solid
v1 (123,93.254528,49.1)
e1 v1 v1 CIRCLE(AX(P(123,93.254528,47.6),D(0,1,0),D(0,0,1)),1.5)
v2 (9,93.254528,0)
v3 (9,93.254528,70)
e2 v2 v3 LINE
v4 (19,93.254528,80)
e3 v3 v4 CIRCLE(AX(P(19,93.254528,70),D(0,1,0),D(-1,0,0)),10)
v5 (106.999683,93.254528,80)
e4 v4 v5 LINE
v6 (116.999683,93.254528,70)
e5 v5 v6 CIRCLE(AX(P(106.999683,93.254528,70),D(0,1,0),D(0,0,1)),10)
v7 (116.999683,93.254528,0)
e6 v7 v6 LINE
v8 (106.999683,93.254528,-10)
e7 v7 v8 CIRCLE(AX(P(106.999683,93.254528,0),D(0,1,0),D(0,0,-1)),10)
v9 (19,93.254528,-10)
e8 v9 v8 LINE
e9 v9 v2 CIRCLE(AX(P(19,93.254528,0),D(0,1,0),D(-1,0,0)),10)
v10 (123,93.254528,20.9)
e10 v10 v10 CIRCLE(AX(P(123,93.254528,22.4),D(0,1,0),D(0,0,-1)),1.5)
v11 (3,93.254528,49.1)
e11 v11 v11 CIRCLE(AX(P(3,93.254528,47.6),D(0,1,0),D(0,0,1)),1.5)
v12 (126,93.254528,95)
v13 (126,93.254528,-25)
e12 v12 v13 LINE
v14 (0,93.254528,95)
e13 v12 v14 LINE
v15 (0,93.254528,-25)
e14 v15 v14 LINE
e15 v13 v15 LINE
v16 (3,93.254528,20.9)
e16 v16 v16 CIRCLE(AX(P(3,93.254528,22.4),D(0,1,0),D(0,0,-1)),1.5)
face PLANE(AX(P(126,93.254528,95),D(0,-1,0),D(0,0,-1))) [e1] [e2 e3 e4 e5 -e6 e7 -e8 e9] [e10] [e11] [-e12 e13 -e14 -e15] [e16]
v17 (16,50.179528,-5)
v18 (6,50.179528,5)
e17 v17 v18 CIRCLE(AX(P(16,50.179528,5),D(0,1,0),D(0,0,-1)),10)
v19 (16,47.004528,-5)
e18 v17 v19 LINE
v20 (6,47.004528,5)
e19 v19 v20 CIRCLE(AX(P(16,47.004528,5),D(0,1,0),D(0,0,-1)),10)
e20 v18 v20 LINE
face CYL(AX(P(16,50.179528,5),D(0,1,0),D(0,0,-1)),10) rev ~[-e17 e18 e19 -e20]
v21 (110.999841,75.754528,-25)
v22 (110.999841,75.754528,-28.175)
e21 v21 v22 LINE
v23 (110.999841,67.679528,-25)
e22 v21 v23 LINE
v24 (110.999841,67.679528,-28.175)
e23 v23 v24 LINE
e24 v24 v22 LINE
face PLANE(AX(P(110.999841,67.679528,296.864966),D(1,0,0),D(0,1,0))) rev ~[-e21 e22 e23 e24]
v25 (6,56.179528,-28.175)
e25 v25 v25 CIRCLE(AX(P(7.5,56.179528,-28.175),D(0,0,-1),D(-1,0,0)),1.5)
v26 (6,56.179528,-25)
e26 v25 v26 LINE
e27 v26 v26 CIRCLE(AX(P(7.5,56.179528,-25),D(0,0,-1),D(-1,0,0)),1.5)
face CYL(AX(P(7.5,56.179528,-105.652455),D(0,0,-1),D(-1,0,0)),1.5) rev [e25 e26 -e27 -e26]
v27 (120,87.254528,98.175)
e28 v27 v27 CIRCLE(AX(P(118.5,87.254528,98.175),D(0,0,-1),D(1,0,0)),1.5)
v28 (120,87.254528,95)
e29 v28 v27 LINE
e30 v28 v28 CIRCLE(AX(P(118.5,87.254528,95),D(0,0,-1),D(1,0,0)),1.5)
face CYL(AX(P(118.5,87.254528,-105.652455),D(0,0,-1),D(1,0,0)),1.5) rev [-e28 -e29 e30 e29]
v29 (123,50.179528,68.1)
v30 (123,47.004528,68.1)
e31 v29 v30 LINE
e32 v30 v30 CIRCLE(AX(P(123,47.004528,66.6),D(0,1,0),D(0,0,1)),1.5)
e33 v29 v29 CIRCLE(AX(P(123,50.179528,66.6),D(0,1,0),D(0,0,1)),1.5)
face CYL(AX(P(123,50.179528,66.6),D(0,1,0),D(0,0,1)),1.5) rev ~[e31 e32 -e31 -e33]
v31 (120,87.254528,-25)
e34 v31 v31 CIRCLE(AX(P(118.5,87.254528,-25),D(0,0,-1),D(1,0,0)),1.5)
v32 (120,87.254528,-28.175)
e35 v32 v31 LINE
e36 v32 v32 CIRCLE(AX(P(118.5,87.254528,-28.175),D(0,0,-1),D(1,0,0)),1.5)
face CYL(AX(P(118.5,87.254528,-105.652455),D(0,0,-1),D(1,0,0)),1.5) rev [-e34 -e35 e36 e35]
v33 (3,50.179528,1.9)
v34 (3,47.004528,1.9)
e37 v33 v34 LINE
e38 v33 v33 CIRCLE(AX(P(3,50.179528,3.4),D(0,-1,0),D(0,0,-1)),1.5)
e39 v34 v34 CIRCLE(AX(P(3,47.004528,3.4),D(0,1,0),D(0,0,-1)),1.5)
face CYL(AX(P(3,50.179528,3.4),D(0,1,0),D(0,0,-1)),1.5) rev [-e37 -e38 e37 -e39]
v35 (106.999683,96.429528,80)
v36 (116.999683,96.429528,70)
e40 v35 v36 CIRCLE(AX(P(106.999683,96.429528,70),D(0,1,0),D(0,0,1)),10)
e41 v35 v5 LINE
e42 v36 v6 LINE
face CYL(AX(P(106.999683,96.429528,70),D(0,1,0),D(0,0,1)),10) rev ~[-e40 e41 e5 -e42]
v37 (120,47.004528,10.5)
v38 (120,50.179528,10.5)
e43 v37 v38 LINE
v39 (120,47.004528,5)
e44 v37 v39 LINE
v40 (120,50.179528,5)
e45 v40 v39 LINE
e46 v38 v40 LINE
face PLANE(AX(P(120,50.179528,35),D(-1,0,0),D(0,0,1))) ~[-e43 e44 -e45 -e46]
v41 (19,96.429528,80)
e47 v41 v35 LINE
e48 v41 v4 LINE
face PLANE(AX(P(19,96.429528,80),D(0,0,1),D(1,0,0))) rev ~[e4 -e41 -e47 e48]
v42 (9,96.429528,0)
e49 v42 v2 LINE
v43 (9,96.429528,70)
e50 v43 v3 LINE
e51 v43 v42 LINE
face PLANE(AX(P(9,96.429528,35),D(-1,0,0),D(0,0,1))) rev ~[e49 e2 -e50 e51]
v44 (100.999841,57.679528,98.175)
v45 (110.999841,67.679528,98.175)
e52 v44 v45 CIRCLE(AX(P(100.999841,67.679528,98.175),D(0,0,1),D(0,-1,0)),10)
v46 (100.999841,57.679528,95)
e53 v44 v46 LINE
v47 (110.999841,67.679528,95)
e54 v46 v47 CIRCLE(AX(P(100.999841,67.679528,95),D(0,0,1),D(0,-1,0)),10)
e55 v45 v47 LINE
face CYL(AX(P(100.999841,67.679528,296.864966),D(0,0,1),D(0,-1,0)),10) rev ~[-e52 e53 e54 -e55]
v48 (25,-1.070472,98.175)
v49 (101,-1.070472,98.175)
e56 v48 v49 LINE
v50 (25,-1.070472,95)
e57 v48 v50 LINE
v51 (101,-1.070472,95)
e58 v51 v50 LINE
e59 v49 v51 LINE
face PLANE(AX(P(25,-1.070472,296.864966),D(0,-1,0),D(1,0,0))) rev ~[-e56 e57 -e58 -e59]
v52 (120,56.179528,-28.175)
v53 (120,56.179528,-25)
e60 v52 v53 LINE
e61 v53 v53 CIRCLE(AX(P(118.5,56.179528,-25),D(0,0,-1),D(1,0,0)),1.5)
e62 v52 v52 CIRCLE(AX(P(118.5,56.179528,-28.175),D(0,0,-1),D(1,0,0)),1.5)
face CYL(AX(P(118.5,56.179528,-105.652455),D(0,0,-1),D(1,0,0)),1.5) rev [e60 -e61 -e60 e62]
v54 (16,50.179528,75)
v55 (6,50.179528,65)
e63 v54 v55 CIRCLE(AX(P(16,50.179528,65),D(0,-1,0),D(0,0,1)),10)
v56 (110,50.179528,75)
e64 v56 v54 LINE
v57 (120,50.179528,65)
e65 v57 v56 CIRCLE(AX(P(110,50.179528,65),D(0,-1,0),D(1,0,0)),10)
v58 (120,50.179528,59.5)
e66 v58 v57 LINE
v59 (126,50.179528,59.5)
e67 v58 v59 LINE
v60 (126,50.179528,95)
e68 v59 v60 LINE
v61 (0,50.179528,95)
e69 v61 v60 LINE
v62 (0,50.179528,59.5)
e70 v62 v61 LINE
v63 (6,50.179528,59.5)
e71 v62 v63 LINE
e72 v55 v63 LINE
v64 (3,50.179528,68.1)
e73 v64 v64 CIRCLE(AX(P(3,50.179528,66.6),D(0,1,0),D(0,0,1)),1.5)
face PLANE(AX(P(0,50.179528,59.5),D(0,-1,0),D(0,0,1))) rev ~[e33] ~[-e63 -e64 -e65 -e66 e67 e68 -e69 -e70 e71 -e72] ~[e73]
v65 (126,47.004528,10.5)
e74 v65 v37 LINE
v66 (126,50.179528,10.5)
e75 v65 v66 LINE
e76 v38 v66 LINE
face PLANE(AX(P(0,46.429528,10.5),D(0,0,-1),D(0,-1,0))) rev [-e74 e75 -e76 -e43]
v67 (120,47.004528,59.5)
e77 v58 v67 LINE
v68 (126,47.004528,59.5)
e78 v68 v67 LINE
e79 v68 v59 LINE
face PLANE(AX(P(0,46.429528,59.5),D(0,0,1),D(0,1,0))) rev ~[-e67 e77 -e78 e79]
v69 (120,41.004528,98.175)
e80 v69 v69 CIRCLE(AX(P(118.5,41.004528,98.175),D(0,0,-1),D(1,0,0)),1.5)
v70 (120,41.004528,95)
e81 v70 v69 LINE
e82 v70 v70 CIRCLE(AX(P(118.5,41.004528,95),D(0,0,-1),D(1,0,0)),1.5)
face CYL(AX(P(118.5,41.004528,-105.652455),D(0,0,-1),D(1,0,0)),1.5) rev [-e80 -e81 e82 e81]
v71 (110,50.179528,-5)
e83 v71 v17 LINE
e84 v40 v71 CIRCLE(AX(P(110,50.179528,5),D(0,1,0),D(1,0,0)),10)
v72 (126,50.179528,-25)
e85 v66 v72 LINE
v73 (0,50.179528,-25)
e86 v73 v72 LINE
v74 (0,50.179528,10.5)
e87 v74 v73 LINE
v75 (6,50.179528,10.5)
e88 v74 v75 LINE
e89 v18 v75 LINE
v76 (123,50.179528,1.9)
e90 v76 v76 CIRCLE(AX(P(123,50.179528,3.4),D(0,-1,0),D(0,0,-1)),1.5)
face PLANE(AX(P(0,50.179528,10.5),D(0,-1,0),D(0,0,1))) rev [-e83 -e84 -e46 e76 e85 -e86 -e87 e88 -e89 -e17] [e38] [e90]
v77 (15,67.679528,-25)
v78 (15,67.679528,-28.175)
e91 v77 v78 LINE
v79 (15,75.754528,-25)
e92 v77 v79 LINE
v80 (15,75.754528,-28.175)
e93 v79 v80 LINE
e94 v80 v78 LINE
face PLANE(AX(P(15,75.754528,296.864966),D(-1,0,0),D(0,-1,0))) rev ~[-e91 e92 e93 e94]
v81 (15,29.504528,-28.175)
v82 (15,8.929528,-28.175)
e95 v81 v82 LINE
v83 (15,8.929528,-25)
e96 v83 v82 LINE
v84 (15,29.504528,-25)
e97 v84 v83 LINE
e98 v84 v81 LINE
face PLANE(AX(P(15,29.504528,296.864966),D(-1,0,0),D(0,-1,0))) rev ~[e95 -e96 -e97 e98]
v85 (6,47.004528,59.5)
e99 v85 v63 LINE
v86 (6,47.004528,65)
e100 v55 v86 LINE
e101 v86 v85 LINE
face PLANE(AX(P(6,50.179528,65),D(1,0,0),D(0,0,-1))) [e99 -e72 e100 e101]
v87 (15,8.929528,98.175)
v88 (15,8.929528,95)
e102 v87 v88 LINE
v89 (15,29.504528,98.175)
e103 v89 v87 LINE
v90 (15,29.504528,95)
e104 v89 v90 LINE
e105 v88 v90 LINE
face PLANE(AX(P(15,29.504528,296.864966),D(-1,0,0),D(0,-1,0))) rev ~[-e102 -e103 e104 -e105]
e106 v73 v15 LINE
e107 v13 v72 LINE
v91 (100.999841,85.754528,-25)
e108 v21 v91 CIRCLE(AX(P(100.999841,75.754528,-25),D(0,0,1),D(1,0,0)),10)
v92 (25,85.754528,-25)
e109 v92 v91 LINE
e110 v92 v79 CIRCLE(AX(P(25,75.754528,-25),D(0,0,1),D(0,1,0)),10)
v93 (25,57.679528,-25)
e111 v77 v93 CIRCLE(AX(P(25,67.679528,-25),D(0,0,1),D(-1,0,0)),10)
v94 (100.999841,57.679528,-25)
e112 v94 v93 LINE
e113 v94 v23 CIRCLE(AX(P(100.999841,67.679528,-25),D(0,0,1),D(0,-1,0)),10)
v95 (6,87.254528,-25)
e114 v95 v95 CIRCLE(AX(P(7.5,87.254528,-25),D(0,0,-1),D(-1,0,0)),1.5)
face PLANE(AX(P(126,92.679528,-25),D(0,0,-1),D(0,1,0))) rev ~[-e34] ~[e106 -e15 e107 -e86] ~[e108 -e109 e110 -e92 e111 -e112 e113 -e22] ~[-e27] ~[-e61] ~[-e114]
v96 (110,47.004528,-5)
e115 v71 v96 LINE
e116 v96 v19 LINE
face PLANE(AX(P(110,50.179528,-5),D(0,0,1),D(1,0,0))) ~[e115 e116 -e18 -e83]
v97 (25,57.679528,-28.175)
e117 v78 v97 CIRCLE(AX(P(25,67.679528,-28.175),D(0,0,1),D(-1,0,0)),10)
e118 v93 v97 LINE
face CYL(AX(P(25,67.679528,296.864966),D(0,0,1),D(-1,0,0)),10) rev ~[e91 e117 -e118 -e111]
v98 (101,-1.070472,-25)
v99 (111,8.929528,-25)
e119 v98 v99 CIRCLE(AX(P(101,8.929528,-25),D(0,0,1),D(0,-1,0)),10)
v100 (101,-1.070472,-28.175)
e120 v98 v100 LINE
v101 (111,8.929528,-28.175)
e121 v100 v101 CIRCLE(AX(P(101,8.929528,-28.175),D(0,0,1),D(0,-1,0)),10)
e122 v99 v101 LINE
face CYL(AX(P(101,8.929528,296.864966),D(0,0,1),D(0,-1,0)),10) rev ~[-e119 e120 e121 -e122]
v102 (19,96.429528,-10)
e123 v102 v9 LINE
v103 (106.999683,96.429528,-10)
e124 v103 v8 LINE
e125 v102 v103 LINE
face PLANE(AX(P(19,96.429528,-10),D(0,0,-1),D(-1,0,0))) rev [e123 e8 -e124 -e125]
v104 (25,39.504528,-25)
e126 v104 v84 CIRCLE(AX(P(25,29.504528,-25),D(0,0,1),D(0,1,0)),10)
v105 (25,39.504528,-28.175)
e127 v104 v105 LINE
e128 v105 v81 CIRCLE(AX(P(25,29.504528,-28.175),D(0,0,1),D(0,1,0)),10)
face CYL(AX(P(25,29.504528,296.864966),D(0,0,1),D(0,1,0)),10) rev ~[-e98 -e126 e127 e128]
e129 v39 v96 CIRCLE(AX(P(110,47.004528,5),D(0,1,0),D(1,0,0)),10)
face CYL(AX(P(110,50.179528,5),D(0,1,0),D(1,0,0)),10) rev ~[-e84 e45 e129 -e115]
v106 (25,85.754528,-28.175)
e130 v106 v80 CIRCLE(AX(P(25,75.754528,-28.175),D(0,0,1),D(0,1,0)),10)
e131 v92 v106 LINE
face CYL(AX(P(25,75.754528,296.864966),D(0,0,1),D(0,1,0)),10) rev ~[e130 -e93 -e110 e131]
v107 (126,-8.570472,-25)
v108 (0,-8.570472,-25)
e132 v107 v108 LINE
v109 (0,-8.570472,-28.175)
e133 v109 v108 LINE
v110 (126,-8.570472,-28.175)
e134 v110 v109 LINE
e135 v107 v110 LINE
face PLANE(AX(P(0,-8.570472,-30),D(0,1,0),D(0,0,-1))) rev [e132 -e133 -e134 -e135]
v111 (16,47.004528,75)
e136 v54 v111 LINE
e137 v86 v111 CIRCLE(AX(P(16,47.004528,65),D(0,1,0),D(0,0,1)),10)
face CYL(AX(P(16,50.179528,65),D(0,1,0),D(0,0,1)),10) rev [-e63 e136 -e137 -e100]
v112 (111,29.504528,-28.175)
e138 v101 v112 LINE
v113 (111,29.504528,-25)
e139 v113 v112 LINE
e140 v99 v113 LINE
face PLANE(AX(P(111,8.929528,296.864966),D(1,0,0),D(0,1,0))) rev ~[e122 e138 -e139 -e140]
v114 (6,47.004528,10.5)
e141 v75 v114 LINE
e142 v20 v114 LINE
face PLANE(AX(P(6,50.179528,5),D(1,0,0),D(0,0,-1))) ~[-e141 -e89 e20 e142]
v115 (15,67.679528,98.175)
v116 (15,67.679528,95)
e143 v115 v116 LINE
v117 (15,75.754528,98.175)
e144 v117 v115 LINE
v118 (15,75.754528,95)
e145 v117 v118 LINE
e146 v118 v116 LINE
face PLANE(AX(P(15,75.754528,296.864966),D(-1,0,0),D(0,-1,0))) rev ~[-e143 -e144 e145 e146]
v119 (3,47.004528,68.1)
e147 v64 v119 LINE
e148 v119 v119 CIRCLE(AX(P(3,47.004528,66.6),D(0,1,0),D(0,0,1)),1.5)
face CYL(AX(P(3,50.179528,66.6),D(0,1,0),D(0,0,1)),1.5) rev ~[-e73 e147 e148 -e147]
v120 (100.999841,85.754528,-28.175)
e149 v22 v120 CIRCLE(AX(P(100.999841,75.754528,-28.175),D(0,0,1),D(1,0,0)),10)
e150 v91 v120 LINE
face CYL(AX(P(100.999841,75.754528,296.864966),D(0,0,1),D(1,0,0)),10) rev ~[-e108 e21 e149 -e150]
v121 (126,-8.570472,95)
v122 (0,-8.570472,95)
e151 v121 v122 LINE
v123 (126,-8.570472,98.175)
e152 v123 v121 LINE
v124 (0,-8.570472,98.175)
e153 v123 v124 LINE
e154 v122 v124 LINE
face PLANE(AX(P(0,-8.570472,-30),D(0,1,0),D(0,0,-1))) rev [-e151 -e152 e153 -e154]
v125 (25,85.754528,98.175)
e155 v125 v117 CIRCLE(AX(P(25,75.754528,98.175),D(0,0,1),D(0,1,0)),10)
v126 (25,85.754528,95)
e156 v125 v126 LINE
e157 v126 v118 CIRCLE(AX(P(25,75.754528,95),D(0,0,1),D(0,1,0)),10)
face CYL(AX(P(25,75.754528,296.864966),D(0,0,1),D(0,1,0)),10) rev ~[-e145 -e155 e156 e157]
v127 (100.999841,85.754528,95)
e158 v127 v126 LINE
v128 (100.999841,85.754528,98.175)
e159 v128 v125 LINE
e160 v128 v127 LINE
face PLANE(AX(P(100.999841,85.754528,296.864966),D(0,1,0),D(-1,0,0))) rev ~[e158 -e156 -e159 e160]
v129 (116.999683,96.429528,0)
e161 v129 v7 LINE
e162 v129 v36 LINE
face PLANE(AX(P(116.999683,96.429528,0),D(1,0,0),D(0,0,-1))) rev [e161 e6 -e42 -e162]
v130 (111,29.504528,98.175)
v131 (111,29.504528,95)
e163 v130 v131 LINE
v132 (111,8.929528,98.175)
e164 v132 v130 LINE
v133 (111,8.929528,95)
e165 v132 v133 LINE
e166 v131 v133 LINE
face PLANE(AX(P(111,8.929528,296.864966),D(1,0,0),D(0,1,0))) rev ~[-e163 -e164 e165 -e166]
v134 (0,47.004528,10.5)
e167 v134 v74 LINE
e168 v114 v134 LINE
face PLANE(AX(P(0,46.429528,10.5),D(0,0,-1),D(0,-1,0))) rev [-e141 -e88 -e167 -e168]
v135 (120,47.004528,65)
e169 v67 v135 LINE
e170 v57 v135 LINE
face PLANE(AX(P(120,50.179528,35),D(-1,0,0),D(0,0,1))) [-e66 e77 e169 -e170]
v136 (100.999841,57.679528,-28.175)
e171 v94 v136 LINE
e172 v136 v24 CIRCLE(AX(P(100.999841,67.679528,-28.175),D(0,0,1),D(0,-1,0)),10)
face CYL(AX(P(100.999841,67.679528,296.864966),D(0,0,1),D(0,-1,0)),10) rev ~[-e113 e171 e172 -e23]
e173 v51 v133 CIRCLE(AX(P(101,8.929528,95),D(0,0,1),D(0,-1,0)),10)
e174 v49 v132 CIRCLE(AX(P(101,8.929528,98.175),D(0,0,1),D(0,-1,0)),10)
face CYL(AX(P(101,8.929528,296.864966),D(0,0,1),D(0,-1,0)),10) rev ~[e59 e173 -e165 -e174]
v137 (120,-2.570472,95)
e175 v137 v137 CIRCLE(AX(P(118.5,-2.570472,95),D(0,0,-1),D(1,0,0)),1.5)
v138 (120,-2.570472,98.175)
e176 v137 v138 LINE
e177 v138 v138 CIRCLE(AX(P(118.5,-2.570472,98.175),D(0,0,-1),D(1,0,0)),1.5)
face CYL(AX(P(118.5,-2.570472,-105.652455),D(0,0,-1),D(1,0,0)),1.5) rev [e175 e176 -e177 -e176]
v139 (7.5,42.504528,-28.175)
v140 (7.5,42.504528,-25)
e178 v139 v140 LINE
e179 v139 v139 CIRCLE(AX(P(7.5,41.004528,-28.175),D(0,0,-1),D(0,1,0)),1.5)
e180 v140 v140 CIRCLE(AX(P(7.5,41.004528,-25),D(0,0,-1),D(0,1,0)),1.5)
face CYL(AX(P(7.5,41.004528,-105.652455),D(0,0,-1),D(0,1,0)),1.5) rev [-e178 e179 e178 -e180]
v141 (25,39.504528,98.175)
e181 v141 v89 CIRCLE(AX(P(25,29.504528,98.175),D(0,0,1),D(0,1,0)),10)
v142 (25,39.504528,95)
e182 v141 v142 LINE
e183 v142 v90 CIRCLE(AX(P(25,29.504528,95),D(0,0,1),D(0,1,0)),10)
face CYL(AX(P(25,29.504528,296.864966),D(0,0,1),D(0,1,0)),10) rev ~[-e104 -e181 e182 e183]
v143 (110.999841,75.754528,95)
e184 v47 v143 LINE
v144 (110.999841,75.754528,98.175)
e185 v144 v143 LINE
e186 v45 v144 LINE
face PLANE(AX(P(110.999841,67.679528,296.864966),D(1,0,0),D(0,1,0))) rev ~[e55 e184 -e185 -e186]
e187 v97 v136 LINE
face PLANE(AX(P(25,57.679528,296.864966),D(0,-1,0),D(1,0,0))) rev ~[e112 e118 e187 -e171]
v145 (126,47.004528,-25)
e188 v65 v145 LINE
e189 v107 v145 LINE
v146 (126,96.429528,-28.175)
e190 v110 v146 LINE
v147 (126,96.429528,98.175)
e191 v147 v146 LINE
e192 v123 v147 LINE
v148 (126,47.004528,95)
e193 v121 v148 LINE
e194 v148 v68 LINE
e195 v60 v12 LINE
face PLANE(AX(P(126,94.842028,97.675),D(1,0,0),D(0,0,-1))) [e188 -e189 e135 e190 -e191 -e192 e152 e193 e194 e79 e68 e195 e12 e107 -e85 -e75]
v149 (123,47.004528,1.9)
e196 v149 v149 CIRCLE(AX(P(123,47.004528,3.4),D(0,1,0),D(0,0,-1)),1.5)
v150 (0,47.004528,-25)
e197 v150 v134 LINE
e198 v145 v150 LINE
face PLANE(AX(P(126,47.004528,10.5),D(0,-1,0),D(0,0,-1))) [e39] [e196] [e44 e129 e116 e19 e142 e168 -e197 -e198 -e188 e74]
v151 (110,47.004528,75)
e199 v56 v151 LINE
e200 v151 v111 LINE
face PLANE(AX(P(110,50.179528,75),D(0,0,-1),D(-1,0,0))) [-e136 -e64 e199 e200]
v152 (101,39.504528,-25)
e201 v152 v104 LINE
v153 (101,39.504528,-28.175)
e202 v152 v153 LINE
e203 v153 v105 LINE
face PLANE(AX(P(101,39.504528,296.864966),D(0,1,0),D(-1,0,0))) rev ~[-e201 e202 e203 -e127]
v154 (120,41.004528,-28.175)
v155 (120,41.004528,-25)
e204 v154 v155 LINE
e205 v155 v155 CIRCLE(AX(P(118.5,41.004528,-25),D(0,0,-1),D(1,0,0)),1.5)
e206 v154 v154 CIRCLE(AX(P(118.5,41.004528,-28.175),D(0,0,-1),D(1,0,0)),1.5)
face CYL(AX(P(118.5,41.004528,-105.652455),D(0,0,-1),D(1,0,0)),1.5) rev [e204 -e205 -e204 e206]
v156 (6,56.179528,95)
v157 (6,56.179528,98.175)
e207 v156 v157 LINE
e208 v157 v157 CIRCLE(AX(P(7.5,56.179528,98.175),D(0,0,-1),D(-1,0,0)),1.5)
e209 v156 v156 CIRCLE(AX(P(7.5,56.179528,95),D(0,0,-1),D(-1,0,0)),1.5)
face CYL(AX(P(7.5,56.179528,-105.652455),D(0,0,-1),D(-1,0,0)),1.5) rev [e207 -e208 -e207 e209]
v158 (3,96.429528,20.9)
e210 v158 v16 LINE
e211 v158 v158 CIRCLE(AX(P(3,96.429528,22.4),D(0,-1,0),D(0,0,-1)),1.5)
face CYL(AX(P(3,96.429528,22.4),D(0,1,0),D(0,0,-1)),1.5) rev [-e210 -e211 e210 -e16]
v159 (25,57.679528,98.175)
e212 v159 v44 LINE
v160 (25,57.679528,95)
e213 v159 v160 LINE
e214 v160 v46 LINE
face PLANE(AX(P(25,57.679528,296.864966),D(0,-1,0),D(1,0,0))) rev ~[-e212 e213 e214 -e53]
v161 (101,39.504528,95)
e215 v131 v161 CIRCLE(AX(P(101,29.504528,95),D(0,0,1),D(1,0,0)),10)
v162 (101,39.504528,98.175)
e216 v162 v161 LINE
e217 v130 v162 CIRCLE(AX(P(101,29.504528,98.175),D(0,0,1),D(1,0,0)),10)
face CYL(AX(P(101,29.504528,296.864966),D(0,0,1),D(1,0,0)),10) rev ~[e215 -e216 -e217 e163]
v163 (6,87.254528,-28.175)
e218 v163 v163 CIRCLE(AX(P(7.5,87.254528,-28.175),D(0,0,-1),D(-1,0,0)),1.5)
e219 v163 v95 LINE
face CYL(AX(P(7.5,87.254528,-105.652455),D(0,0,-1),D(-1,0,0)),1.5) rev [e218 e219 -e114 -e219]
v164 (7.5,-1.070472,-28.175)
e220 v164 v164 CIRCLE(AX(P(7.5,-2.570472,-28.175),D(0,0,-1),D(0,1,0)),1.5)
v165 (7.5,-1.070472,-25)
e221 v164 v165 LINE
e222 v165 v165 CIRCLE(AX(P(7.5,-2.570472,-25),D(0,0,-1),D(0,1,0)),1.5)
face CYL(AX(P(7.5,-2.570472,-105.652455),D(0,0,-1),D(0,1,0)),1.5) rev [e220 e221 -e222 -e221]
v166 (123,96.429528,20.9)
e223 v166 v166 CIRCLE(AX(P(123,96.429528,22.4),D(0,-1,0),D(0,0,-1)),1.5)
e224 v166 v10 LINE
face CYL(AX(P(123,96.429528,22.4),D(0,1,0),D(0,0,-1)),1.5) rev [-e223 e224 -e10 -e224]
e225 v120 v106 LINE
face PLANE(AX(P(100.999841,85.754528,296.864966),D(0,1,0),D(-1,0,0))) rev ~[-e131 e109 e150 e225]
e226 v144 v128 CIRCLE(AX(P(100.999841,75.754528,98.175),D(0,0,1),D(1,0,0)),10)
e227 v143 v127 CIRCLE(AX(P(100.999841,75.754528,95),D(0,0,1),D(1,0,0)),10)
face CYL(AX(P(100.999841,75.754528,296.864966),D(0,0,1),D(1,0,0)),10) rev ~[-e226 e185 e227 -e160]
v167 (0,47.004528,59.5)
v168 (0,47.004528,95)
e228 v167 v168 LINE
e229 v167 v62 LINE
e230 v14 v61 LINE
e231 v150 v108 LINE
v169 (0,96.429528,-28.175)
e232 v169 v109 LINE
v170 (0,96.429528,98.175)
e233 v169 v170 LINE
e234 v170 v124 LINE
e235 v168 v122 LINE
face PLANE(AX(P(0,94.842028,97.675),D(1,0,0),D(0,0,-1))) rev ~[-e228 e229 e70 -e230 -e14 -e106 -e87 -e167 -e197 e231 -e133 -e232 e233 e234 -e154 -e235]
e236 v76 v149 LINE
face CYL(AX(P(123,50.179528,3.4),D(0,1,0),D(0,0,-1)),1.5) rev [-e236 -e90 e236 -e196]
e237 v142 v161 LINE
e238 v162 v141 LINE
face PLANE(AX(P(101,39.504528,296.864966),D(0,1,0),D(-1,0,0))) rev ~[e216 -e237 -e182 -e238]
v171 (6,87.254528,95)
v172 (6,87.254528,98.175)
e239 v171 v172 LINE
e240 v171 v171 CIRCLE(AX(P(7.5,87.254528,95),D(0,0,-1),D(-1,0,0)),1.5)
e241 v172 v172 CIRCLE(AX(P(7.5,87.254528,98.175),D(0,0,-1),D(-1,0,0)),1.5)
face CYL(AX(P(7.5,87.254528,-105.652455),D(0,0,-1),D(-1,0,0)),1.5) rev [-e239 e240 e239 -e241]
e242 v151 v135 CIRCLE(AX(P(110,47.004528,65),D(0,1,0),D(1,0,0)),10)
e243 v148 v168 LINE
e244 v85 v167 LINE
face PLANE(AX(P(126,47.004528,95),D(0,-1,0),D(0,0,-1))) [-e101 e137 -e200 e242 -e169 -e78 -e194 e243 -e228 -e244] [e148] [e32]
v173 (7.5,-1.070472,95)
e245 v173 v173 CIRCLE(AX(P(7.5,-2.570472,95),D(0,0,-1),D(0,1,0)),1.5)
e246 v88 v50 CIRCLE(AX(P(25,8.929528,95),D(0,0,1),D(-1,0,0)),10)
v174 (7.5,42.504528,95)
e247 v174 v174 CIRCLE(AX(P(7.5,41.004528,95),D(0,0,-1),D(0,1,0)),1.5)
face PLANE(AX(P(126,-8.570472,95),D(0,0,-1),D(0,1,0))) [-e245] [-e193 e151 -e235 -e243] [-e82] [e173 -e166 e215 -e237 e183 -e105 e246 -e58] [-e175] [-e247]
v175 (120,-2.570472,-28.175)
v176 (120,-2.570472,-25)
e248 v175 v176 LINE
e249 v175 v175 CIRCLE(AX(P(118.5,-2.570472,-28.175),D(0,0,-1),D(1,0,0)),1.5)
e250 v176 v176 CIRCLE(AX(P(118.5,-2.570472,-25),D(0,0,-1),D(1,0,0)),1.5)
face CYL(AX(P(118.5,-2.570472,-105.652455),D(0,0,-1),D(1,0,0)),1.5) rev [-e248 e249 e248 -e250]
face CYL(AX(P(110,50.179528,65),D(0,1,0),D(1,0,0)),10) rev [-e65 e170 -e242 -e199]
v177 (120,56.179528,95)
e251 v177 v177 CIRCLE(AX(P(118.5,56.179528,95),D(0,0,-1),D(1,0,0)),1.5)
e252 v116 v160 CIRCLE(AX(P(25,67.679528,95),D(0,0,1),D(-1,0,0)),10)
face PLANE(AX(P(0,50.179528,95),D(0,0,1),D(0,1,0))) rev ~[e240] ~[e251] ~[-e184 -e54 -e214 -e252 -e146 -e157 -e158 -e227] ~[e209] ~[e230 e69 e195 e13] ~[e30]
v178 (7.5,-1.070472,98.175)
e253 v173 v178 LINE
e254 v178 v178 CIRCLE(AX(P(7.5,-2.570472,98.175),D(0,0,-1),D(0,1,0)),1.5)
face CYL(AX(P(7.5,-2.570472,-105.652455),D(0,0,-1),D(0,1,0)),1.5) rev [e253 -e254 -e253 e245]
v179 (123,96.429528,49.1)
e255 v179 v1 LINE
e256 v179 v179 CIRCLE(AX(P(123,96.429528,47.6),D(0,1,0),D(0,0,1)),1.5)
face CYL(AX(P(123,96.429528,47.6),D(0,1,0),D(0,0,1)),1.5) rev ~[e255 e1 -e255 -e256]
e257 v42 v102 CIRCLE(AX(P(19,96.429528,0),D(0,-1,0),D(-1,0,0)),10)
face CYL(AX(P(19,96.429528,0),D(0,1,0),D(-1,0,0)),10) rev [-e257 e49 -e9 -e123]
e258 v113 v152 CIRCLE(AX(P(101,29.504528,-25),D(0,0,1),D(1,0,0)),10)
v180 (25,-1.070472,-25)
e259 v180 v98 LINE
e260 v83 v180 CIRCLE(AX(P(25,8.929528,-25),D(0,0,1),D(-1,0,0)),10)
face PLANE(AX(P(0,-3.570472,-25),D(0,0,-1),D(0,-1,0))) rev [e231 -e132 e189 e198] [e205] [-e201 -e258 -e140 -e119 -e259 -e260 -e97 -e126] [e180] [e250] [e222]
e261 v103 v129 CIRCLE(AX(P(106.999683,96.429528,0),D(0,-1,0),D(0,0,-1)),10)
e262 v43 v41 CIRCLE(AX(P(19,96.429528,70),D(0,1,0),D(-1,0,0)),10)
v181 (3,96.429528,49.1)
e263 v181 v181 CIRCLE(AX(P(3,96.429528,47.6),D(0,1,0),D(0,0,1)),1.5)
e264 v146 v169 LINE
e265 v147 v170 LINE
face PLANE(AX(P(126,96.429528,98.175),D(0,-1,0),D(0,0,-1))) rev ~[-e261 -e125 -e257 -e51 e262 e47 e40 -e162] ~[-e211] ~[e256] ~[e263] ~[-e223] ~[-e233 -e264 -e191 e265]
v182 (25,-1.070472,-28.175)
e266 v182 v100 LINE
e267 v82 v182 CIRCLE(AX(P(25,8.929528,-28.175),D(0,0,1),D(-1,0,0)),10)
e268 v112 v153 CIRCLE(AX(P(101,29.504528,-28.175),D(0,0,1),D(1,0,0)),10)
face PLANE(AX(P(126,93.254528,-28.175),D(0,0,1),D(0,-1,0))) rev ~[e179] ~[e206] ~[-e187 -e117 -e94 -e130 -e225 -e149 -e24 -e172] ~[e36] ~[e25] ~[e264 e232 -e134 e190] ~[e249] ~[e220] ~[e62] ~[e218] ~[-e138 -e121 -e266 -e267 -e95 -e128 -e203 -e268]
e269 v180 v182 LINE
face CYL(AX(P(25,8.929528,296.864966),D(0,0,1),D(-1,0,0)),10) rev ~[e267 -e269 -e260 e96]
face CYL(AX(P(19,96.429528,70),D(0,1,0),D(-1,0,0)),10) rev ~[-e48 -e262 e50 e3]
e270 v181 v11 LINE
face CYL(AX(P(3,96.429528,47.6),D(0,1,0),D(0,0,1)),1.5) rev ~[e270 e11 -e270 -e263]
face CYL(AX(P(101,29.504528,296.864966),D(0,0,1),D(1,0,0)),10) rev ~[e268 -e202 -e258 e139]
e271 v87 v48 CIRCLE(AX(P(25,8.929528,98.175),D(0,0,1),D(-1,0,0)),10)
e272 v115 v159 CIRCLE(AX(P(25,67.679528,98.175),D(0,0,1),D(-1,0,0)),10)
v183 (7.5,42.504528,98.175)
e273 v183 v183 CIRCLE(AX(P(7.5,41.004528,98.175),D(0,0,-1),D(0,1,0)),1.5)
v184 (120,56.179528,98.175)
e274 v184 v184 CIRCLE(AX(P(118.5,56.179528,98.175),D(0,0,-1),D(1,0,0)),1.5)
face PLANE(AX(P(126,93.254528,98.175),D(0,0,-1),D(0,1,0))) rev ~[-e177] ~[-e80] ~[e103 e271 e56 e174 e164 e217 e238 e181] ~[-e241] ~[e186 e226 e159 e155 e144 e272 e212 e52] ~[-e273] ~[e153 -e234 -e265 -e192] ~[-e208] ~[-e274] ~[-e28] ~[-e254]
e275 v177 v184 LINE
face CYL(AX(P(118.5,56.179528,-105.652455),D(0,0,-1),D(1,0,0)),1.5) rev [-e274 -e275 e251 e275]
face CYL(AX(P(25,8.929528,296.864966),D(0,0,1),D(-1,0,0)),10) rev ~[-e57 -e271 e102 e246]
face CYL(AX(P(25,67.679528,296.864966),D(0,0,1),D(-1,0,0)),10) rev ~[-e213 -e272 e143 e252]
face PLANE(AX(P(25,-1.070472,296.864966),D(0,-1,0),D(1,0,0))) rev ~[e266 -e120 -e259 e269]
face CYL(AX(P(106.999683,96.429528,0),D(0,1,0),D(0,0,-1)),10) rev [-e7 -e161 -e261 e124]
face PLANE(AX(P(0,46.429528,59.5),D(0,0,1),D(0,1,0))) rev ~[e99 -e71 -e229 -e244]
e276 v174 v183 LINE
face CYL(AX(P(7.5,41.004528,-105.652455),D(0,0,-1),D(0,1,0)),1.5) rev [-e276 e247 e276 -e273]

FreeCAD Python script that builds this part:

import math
import FreeCAD as App
import Part
import Sketcher

V = App.Vector

doc = App.newDocument("Part")
body = doc.addObject("PartDesign::Body", "Body")

# Sketch on YZ plane
sketch1 = body.newObject("Sketcher::SketchObject", "Sketch")
sketch1.AttachmentSupport = (doc.getObject("YZ_Plane"), [""])
sketch1.MapMode = "FlatFace"
sketch1.addGeometry([
    Part.LineSegment(V(-3.6, 95, 0), V(46.4, 95, 0)),  # 0
    Part.LineSegment(V(46.4, 95, 0), V(46.4, 59.5, 0)),  # 1
    Part.LineSegment(V(46.4, 59.5, 0), V(50.2, 59.5, 0)),  # 2
    Part.LineSegment(V(50.2, 59.5, 0), V(50.2, 95, 0)),  # 3
    Part.LineSegment(V(50.2, 95, 0), V(92.7, 95, 0)),  # 4
    Part.LineSegment(V(92.7, 95, 0), V(92.7, 35, 0)),  # 5
    Part.LineSegment(V(92.7, 35, 0), V(96.4, 35, 0)),  # 6
    Part.LineSegment(V(96.4, 35, 0), V(96.4, 100, 0)),  # 7
    Part.LineSegment(V(96.4, 100, 0), V(-8.6, 100, 0)),  # 8
    Part.LineSegment(V(-8.6, 100, 0), V(-8.6, 35, 0)),  # 9
    Part.LineSegment(V(-8.6, 35, 0), V(-3.6, 35, 0)),  # 10
    Part.LineSegment(V(-3.6, 35, 0), V(-3.6, 95, 0)),  # 11
], False)
sketch1.addConstraint([
    Sketcher.Constraint("Coincident", 0, 2, 1, 1),
    Sketcher.Constraint("Coincident", 1, 2, 2, 1),
    Sketcher.Constraint("Coincident", 2, 2, 3, 1),
    Sketcher.Constraint("Coincident", 3, 2, 4, 1),
    Sketcher.Constraint("Coincident", 4, 2, 5, 1),
    Sketcher.Constraint("Coincident", 5, 2, 6, 1),
    Sketcher.Constraint("Coincident", 6, 2, 7, 1),
    Sketcher.Constraint("Coincident", 7, 2, 8, 1),
    Sketcher.Constraint("Coincident", 8, 2, 9, 1),
    Sketcher.Constraint("Coincident", 9, 2, 10, 1),
    Sketcher.Constraint("Coincident", 10, 2, 11, 1),
    Sketcher.Constraint("Coincident", 11, 2, 0, 1),
    Sketcher.Constraint("Horizontal", 0),
    Sketcher.Constraint("Vertical", 1),
    Sketcher.Constraint("Horizontal", 2),
    Sketcher.Constraint("Vertical", 3),
    Sketcher.Constraint("Horizontal", 4),
    Sketcher.Constraint("Vertical", 5),
    Sketcher.Constraint("Horizontal", 6),
    Sketcher.Constraint("Vertical", 7),
    Sketcher.Constraint("Horizontal", 8),
    Sketcher.Constraint("Vertical", 9),
    Sketcher.Constraint("Horizontal", 10),
    Sketcher.Constraint("Vertical", 11),
    Sketcher.Constraint("Horizontal", 0, 2, 3, 2),
    Sketcher.Constraint("Horizontal", 6, 2, 9, 2),
    Sketcher.Constraint("Equal", 2, 6),
    Sketcher.Constraint("DistanceX", 0, 1, 0, 2, 50.0),
    Sketcher.Constraint("DistanceX", 8, 2, 8, 1, 105.0),
    Sketcher.Constraint("DistanceX", 10, 1, 10, 2, 5.0),
    Sketcher.Constraint("DistanceY", 5, 2, 5, 1, 60.0),
    Sketcher.Constraint("DistanceY", 7, 1, 7, 2, 65.0),
    Sketcher.Constraint("DistanceX", 4, 1, 4, 2, 42.5),
    Sketcher.Constraint("DistanceY", 1, 2, 1, 1, 35.5),
    Sketcher.Constraint("DistanceY", -1, 1, 0, 2, 95.0),
    Sketcher.Constraint("DistanceX", -1, 1, 0, 2, 46.429528),
])
pad1 = body.newObject("PartDesign::Pad", "Pad")
pad1.Profile = sketch1
pad1.Length = 126

# Sketch on XZ plane
sketch2 = body.newObject("Sketcher::SketchObject", "Sketch001")
sketch2.AttachmentSupport = (doc.getObject("XZ_Plane"), [""])
sketch2.MapMode = "FlatFace"
sketch2.AttachmentOffset = App.Placement(V(0, 0, -96.429528), App.Rotation())
sketch2.addGeometry([
    Part.Circle(V(3, 47.6, 0), V(0, 0, 1), 1.5),
    Part.Circle(V(123, 47.6, 0), V(0, 0, 1), 1.5),
], False)
sketch2.addConstraint([
    Sketcher.Constraint("Equal", 0, 1),
    Sketcher.Constraint("Horizontal", 0, 3, 1, 3),
    Sketcher.Constraint("Diameter", 0, 3.0),
    Sketcher.Constraint("DistanceX", -1, 1, 0, 3, 3.0),
    Sketcher.Constraint("DistanceX", -1, 1, 1, 3, 123.0),
    Sketcher.Constraint("DistanceY", -1, 1, 0, 3, 47.6),
])
pocket1 = body.newObject("PartDesign::Pocket", "Pocket")
pocket1.Profile = sketch2
pocket1.Length = 46.25
pocket1.Reversed = True

# Sketch on XZ plane
sketch3 = body.newObject("Sketcher::SketchObject", "Sketch002")
sketch3.AttachmentSupport = (doc.getObject("XZ_Plane"), [""])
sketch3.MapMode = "FlatFace"
sketch3.AttachmentOffset = App.Placement(V(0, 0, -50.179528), App.Rotation())
sketch3.addGeometry([
    Part.Circle(V(3, 66.6, 0), V(0, 0, 1), 1.5),  # 0
    Part.Circle(V(123, 66.6, 0), V(0, 0, 1), 1.5),  # 1
    Part.LineSegment(V(6, 35, 0), V(6, 65, 0)),  # 2
    Part.ArcOfCircle(Part.Circle(V(16, 65, 0), V(0, 0, 1), 10), math.radians(90), math.radians(180)),  # 3
    Part.LineSegment(V(16, 75, 0), V(110, 75, 0)),  # 4
    Part.ArcOfCircle(Part.Circle(V(110, 65, 0), V(0, 0, 1), 10), math.radians(0), math.radians(90)),  # 5
    Part.LineSegment(V(120, 65, 0), V(120, 35, 0)),  # 6
    Part.LineSegment(V(120, 35, 0), V(6, 35, 0)),  # 7
], False)
sketch3.addConstraint([
    Sketcher.Constraint("Tangent", 2, 2, 3, 2),
    Sketcher.Constraint("Tangent", 3, 1, 4, 1),
    Sketcher.Constraint("Tangent", 4, 2, 5, 2),
    Sketcher.Constraint("Tangent", 5, 1, 6, 1),
    Sketcher.Constraint("Coincident", 6, 2, 7, 1),
    Sketcher.Constraint("Coincident", 7, 2, 2, 1),
    Sketcher.Constraint("Vertical", 2),
    Sketcher.Constraint("Horizontal", 4),
    Sketcher.Constraint("Vertical", 6),
    Sketcher.Constraint("Horizontal", 7),
    Sketcher.Constraint("Equal", 0, 1),
    Sketcher.Constraint("Equal", 3, 5),
    Sketcher.Constraint("Horizontal", 0, 3, 1, 3),
    Sketcher.Constraint("Diameter", 0, 3.0),
    Sketcher.Constraint("Radius", 3, 10.0),
    Sketcher.Constraint("DistanceX", 4, 1, 4, 2, 94.0),
    Sketcher.Constraint("DistanceY", 2, 1, 2, 2, 30.0),
    Sketcher.Constraint("DistanceX", -1, 1, 0, 3, 3.0),
    Sketcher.Constraint("DistanceX", -1, 1, 1, 3, 123.0),
    Sketcher.Constraint("DistanceX", -1, 1, 3, 3, 16.0),
    Sketcher.Constraint("DistanceY", -1, 1, 3, 3, 65.0),
    Sketcher.Constraint("DistanceY", -1, 1, 0, 3, 66.6),
])
pocket2 = body.newObject("PartDesign::Pocket", "Pocket001")
pocket2.Profile = sketch3
pocket2.Length = 53.75
pocket2.Reversed = True
doc.recompute()

datumplane = body.newObject("PartDesign::Plane", "DatumPlane")
datumplane.AttachmentSupport = (doc.getObject("XY_Plane"), [""])
datumplane.MapMode = "FlatFace"
datumplane.AttachmentOffset = App.Placement(V(0, 0, 35), App.Rotation())
mirrored = body.newObject("PartDesign::Mirrored", "Mirrored")
mirrored.Originals = [pad1, pocket1, pocket2]
mirrored.MirrorPlane = (datumplane, [""])
body.Tip = mirrored

# Sketch on XZ plane
sketch4 = body.newObject("Sketcher::SketchObject", "Sketch003")
sketch4.AttachmentSupport = (doc.getObject("XZ_Plane"), [""])
sketch4.MapMode = "FlatFace"
sketch4.AttachmentOffset = App.Placement(V(0, 0, -96.429528), App.Rotation())
sketch4.addGeometry([
    Part.LineSegment(V(9, 35, 0), V(9, 70, 0)),  # 0
    Part.ArcOfCircle(Part.Circle(V(19, 70, 0), V(0, 0, 1), 10), math.radians(90), math.radians(180)),  # 1
    Part.LineSegment(V(19, 80, 0), V(107, 80, 0)),  # 2
    Part.ArcOfCircle(Part.Circle(V(107, 70, 0), V(0, 0, 1), 10), math.radians(0), math.radians(90)),  # 3
    Part.LineSegment(V(117, 70, 0), V(117, 35, 0)),  # 4
    Part.LineSegment(V(117, 35, 0), V(9, 35, 0)),  # 5
], False)
sketch4.addConstraint([
    Sketcher.Constraint("Tangent", 0, 2, 1, 2),
    Sketcher.Constraint("Tangent", 1, 1, 2, 1),
    Sketcher.Constraint("Tangent", 2, 2, 3, 2),
    Sketcher.Constraint("Tangent", 3, 1, 4, 1),
    Sketcher.Constraint("Coincident", 4, 2, 5, 1),
    Sketcher.Constraint("Coincident", 5, 2, 0, 1),
    Sketcher.Constraint("Vertical", 0),
    Sketcher.Constraint("Horizontal", 2),
    Sketcher.Constraint("Vertical", 4),
    Sketcher.Constraint("Horizontal", 5),
    Sketcher.Constraint("Equal", 1, 3),
    Sketcher.Constraint("Radius", 1, 10.0),
    Sketcher.Constraint("DistanceY", 0, 1, 0, 2, 35.0),
    Sketcher.Constraint("DistanceX", -1, 1, 1, 3, 19.0),
    Sketcher.Constraint("DistanceY", -1, 1, 1, 3, 70.0),
    Sketcher.Constraint("DistanceX", 2, 1, 2, 2, 87.999683),
])
pocket3 = body.newObject("PartDesign::Pocket", "Pocket002")
pocket3.Profile = sketch4
pocket3.Length = 46.25
pocket3.Reversed = True
doc.recompute()

datumplane2 = body.newObject("PartDesign::Plane", "DatumPlane001")
datumplane2.AttachmentSupport = (doc.getObject("XY_Plane"), [""])
datumplane2.MapMode = "FlatFace"
datumplane2.AttachmentOffset = App.Placement(V(0, 0, 35), App.Rotation())
mirrored2 = body.newObject("PartDesign::Mirrored", "Mirrored001")
mirrored2.Originals = [pocket3]
mirrored2.MirrorPlane = (datumplane2, [""])
body.Tip = mirrored2

# Sketch on YZ plane
sketch5 = body.newObject("Sketcher::SketchObject", "Sketch004")
sketch5.AttachmentSupport = (doc.getObject("YZ_Plane"), [""])
sketch5.MapMode = "FlatFace"
sketch5.AttachmentOffset = App.Placement(V(0, 0, 126), App.Rotation())
sketch5.addGeometry([
    Part.LineSegment(V(-3.6, 95, 0), V(-8.6, 95, 0)),  # 0
    Part.LineSegment(V(-8.6, 95, 0), V(-8.6, -25, 0)),  # 1
    Part.LineSegment(V(-8.6, -25, 0), V(-3.6, -25, 0)),  # 2
    Part.LineSegment(V(-3.6, -25, 0), V(-3.6, 95, 0)),  # 3
    Part.LineSegment(V(96.4, 97.2, 0), V(96.4, 100, 0)),  # 4
    Part.LineSegment(V(96.4, 100, 0), V(-8.6, 100, 0)),  # 5
    Part.LineSegment(V(-8.6, 100, 0), V(-8.6, 98.2, 0)),  # 6
    Part.LineSegment(V(-8.6, 98.2, 0), V(93.3, 98.2, 0)),  # 7
    Part.LineSegment(V(93.3, 98.2, 0), V(93.3, 97.2, 0)),  # 8
    Part.LineSegment(V(93.3, 97.2, 0), V(96.4, 97.2, 0)),  # 9
    Part.LineSegment(V(93.3, 95, 0), V(92.7, 95, 0)),  # 10
    Part.LineSegment(V(92.7, 95, 0), V(92.7, -25, 0)),  # 11
    Part.LineSegment(V(92.7, -25, 0), V(93.3, -25, 0)),  # 12
    Part.LineSegment(V(93.3, -25, 0), V(93.3, 95, 0)),  # 13
    Part.LineSegment(V(47, 95, 0), V(46.4, 95, 0)),  # 14
    Part.LineSegment(V(46.4, 95, 0), V(46.4, 59.5, 0)),  # 15
    Part.LineSegment(V(46.4, 59.5, 0), V(47, 59.5, 0)),  # 16
    Part.LineSegment(V(47, 59.5, 0), V(47, 95, 0)),  # 17
    Part.LineSegment(V(47, 10.5, 0), V(46.4, 10.5, 0)),  # 18
    Part.LineSegment(V(46.4, 10.5, 0), V(46.4, -25, 0)),  # 19
    Part.LineSegment(V(46.4, -25, 0), V(47, -25, 0)),  # 20
    Part.LineSegment(V(47, -25, 0), V(47, 10.5, 0)),  # 21
    Part.LineSegment(V(93.3, -28.2, 0), V(-8.6, -28.2, 0)),  # 22
    Part.LineSegment(V(-8.6, -28.2, 0), V(-8.6, -30, 0)),  # 23
    Part.LineSegment(V(-8.6, -30, 0), V(96.4, -30, 0)),  # 24
    Part.LineSegment(V(96.4, -30, 0), V(96.4, -27.2, 0)),  # 25
    Part.LineSegment(V(96.4, -27.2, 0), V(93.3, -27.2, 0)),  # 26
    Part.LineSegment(V(93.3, -27.2, 0), V(93.3, -28.2, 0)),  # 27
], False)
sketch5.addConstraint([
    Sketcher.Constraint("Coincident", 0, 2, 1, 1),
    Sketcher.Constraint("Coincident", 1, 2, 2, 1),
    Sketcher.Constraint("Coincident", 2, 2, 3, 1),
    Sketcher.Constraint("Coincident", 3, 2, 0, 1),
    Sketcher.Constraint("Coincident", 4, 2, 5, 1),
    Sketcher.Constraint("Coincident", 5, 2, 6, 1),
    Sketcher.Constraint("Coincident", 6, 2, 7, 1),
    Sketcher.Constraint("Coincident", 7, 2, 8, 1),
    Sketcher.Constraint("Coincident", 8, 2, 9, 1),
    Sketcher.Constraint("Coincident", 9, 2, 4, 1),
    Sketcher.Constraint("Coincident", 10, 2, 11, 1),
    Sketcher.Constraint("Coincident", 11, 2, 12, 1),
    Sketcher.Constraint("Coincident", 12, 2, 13, 1),
    Sketcher.Constraint("Coincident", 13, 2, 10, 1),
    Sketcher.Constraint("Coincident", 14, 2, 15, 1),
    Sketcher.Constraint("Coincident", 15, 2, 16, 1),
    Sketcher.Constraint("Coincident", 16, 2, 17, 1),
    Sketcher.Constraint("Coincident", 17, 2, 14, 1),
    Sketcher.Constraint("Coincident", 18, 2, 19, 1),
    Sketcher.Constraint("Coincident", 19, 2, 20, 1),
    Sketcher.Constraint("Coincident", 20, 2, 21, 1),
    Sketcher.Constraint("Coincident", 21, 2, 18, 1),
    Sketcher.Constraint("Coincident", 22, 2, 23, 1),
    Sketcher.Constraint("Coincident", 23, 2, 24, 1),
    Sketcher.Constraint("Coincident", 24, 2, 25, 1),
    Sketcher.Constraint("Coincident", 25, 2, 26, 1),
    Sketcher.Constraint("Coincident", 26, 2, 27, 1),
    Sketcher.Constraint("Coincident", 27, 2, 22, 1),
    Sketcher.Constraint("Horizontal", 0),
    Sketcher.Constraint("Vertical", 1),
    Sketcher.Constraint("Horizontal", 2),
    Sketcher.Constraint("Vertical", 3),
    Sketcher.Constraint("Vertical", 4),
    Sketcher.Constraint("Horizontal", 5),
    Sketcher.Constraint("Vertical", 6),
    Sketcher.Constraint("Horizontal", 7),
    Sketcher.Constraint("Vertical", 8),
    Sketcher.Constraint("Horizontal", 9),
    Sketcher.Constraint("Horizontal", 10),
    Sketcher.Constraint("Vertical", 11),
    Sketcher.Constraint("Horizontal", 12),
    Sketcher.Constraint("Vertical", 13),
    Sketcher.Constraint("Horizontal", 14),
    Sketcher.Constraint("Vertical", 15),
    Sketcher.Constraint("Horizontal", 16),
    Sketcher.Constraint("Vertical", 17),
    Sketcher.Constraint("Horizontal", 18),
    Sketcher.Constraint("Vertical", 19),
    Sketcher.Constraint("Horizontal", 20),
    Sketcher.Constraint("Vertical", 21),
    Sketcher.Constraint("Horizontal", 22),
    Sketcher.Constraint("Vertical", 23),
    Sketcher.Constraint("Horizontal", 24),
    Sketcher.Constraint("Vertical", 25),
    Sketcher.Constraint("Horizontal", 26),
    Sketcher.Constraint("Vertical", 27),
    Sketcher.Constraint("Horizontal", 3, 2, 10, 2),
    Sketcher.Constraint("Horizontal", 2, 2, 11, 2),
    Sketcher.Constraint("Horizontal", 13, 2, 14, 2),
    Sketcher.Constraint("Horizontal", 12, 2, 19, 2),
    Sketcher.Constraint("Vertical", 1, 2, 5, 2),
    Sketcher.Constraint("Vertical", 8, 2, 12, 2),
    Sketcher.Constraint("Vertical", 15, 2, 18, 2),
    Sketcher.Constraint("Vertical", 17, 2, 20, 2),
    Sketcher.Constraint("Vertical", 6, 2, 22, 2),
    Sketcher.Constraint("Vertical", 9, 2, 24, 2),
    Sketcher.Constraint("Vertical", 13, 2, 26, 2),
    Sketcher.Constraint("Equal", 12, 14),
    Sketcher.Constraint("Equal", 17, 19),
    Sketcher.Constraint("Equal", 6, 23),
    Sketcher.Constraint("Equal", 4, 25),
    Sketcher.Constraint("DistanceX", 0, 2, 0, 1, 5.0),
    Sketcher.Constraint("DistanceX", 5, 2, 5, 1, 105.0),
    Sketcher.Constraint("DistanceY", 1, 2, 1, 1, 120.0),
    Sketcher.Constraint("DistanceY", 8, 2, 8, 1, 1.0),
    Sketcher.Constraint("DistanceY", 15, 2, 15, 1, 35.5),
    Sketcher.Constraint("DistanceY", -1, 1, 0, 2, 95.0),
    Sketcher.Constraint("DistanceY", -1, 1, 4, 2, 100.0),
    Sketcher.Constraint("DistanceY", 23, 2, -1, 1, 30.0),
    Sketcher.Constraint("DistanceX", 3, 2, 14, 2, 50.0),
    Sketcher.Constraint("DistanceX", 7, 1, 7, 2, 101.825),
    Sketcher.Constraint("DistanceX", 10, 2, 10, 1, 0.575),
    Sketcher.Constraint("DistanceY", 4, 1, 4, 2, 2.825),
    Sketcher.Constraint("DistanceX", 0, 2, -1, 1, 8.570472),
])
pocket4 = body.newObject("PartDesign::Pocket", "Pocket003")
pocket4.Profile = sketch5
pocket4.Type = "ThroughAll"

# Sketch on XY plane
sketch6 = body.newObject("Sketcher::SketchObject", "Sketch005")
sketch6.AttachmentSupport = (doc.getObject("XY_Plane"), [""])
sketch6.MapMode = "FlatFace"
sketch6.AttachmentOffset = App.Placement(V(0, 0, 95), App.Rotation())
sketch6.addGeometry([
    Part.LineSegment(V(25, 86, 0), V(101, 86, 0)),  # 0
    Part.ArcOfCircle(Part.Circle(V(101, 76, 0), V(0, 0, 1), 10), math.radians(0), math.radians(90)),  # 1
    Part.LineSegment(V(111, 76, 0), V(111, 68, 0)),  # 2
    Part.ArcOfCircle(Part.Circle(V(101, 68, 0), V(0, 0, 1), 10), math.radians(-90), math.radians(0)),  # 3
    Part.LineSegment(V(101, 58, 0), V(25, 58, 0)),  # 4
    Part.ArcOfCircle(Part.Circle(V(25, 68, 0), V(0, 0, 1), 10), math.radians(180), math.radians(270)),  # 5
    Part.LineSegment(V(15, 68, 0), V(15, 76, 0)),  # 6
    Part.ArcOfCircle(Part.Circle(V(25, 76, 0), V(0, 0, 1), 10), math.radians(90), math.radians(180)),  # 7
    Part.LineSegment(V(25, 40, 0), V(101, 40, 0)),  # 8
    Part.ArcOfCircle(Part.Circle(V(101, 30, 0), V(0, 0, 1), 10), math.radians(0), math.radians(90)),  # 9
    Part.LineSegment(V(111, 30, 0), V(111, 9, 0)),  # 10
    Part.ArcOfCircle(Part.Circle(V(101, 9, 0), V(0, 0, 1), 10), math.radians(-90), math.radians(0)),  # 11
    Part.LineSegment(V(101, -1, 0), V(25, -1, 0)),  # 12
    Part.ArcOfCircle(Part.Circle(V(25, 9, 0), V(0, 0, 1), 10), math.radians(180), math.radians(270)),  # 13
    Part.LineSegment(V(15, 9, 0), V(15, 30, 0)),  # 14
    Part.ArcOfCircle(Part.Circle(V(25, 30, 0), V(0, 0, 1), 10), math.radians(90), math.radians(180)),  # 15
], False)
sketch6.addConstraint([
    Sketcher.Constraint("Tangent", 0, 2, 1, 2),
    Sketcher.Constraint("Tangent", 1, 1, 2, 1),
    Sketcher.Constraint("Tangent", 2, 2, 3, 2),
    Sketcher.Constraint("Tangent", 3, 1, 4, 1),
    Sketcher.Constraint("Tangent", 4, 2, 5, 2),
    Sketcher.Constraint("Tangent", 5, 1, 6, 1),
    Sketcher.Constraint("Tangent", 6, 2, 7, 2),
    Sketcher.Constraint("Tangent", 7, 1, 0, 1),
    Sketcher.Constraint("Tangent", 8, 2, 9, 2),
    Sketcher.Constraint("Tangent", 9, 1, 10, 1),
    Sketcher.Constraint("Tangent", 10, 2, 11, 2),
    Sketcher.Constraint("Tangent", 11, 1, 12, 1),
    Sketcher.Constraint("Tangent", 12, 2, 13, 2),
    Sketcher.Constraint("Tangent", 13, 1, 14, 1),
    Sketcher.Constraint("Tangent", 14, 2, 15, 2),
    Sketcher.Constraint("Tangent", 15, 1, 8, 1),
    Sketcher.Constraint("Horizontal", 0),
    Sketcher.Constraint("Vertical", 2),
    Sketcher.Constraint("Horizontal", 4),
    Sketcher.Constraint("Vertical", 6),
    Sketcher.Constraint("Horizontal", 8),
    Sketcher.Constraint("Vertical", 10),
    Sketcher.Constraint("Horizontal", 12),
    Sketcher.Constraint("Vertical", 14),
    Sketcher.Constraint("Equal", 1, 3),
    Sketcher.Constraint("Equal", 3, 5),
    Sketcher.Constraint("Equal", 5, 7),
    Sketcher.Constraint("Equal", 7, 9),
    Sketcher.Constraint("Equal", 9, 11),
    Sketcher.Constraint("Equal", 11, 13),
    Sketcher.Constraint("Equal", 13, 15),
    Sketcher.Constraint("Vertical", 7, 3, 13, 3),
    Sketcher.Constraint("Radius", 1, 10.0),
    Sketcher.Constraint("DistanceX", 8, 1, 8, 2, 76.0),
    Sketcher.Constraint("DistanceX", -1, 1, 5, 3, 25.0),
    Sketcher.Constraint("DistanceY", 2, 2, 2, 1, 8.075),
    Sketcher.Constraint("DistanceY", 10, 2, 10, 1, 20.575),
    Sketcher.Constraint("DistanceY", 9, 3, 1, 3, 46.25),
    Sketcher.Constraint("DistanceX", 0, 1, 0, 2, 75.999841),
    Sketcher.Constraint("DistanceY", -1, 1, 1, 3, 75.754528),
])
pocket5 = body.newObject("PartDesign::Pocket", "Pocket004")
pocket5.Profile = sketch6
pocket5.Type = "ThroughAll"
pocket5.Midplane = True

# Sketch on XY plane
sketch7 = body.newObject("Sketcher::SketchObject", "Sketch006")
sketch7.AttachmentSupport = (doc.getObject("XY_Plane"), [""])
sketch7.MapMode = "FlatFace"
sketch7.AttachmentOffset = App.Placement(V(0, 0, 98.175), App.Rotation())
sketch7.addGeometry([
    Part.Circle(V(118.5, 87.3, 0), V(0, 0, 1), 1.5),  # 0
    Part.Circle(V(118.5, 56.2, 0), V(0, 0, 1), 1.5),  # 1
    Part.Circle(V(118.5, 41, 0), V(0, 0, 1), 1.5),  # 2
    Part.Circle(V(118.5, -2.6, 0), V(0, 0, 1), 1.5),  # 3
    Part.Circle(V(7.5, -2.6, 0), V(0, 0, 1), 1.5),  # 4
    Part.Circle(V(7.5, 41, 0), V(0, 0, 1), 1.5),  # 5
    Part.Circle(V(7.5, 56.2, 0), V(0, 0, 1), 1.5),  # 6
    Part.Circle(V(7.5, 87.3, 0), V(0, 0, 1), 1.5),  # 7
], False)
sketch7.addConstraint([
    Sketcher.Constraint("Equal", 0, 1),
    Sketcher.Constraint("Equal", 1, 2),
    Sketcher.Constraint("Equal", 2, 3),
    Sketcher.Constraint("Equal", 3, 4),
    Sketcher.Constraint("Equal", 4, 5),
    Sketcher.Constraint("Equal", 5, 6),
    Sketcher.Constraint("Equal", 6, 7),
    Sketcher.Constraint("Horizontal", 3, 3, 4, 3),
    Sketcher.Constraint("Horizontal", 2, 3, 5, 3),
    Sketcher.Constraint("Horizontal", 1, 3, 6, 3),
    Sketcher.Constraint("Horizontal", 0, 3, 7, 3),
    Sketcher.Constraint("Vertical", 0, 3, 1, 3),
    Sketcher.Constraint("Vertical", 1, 3, 2, 3),
    Sketcher.Constraint("Vertical", 2, 3, 3, 3),
    Sketcher.Constraint("Vertical", 4, 3, 5, 3),
    Sketcher.Constraint("Vertical", 5, 3, 6, 3),
    Sketcher.Constraint("Vertical", 6, 3, 7, 3),
    Sketcher.Constraint("Diameter", 0, 3.0),
    Sketcher.Constraint("DistanceX", 4, 3, 3, 3, 111.0),
    Sketcher.Constraint("DistanceX", -1, 1, 0, 3, 118.5),
    Sketcher.Constraint("DistanceY", 2, 3, 0, 3, 46.25),
    Sketcher.Constraint("DistanceY", 3, 3, 1, 3, 58.75),
    Sketcher.Constraint("DistanceY", 1, 3, 0, 3, 31.075),
    Sketcher.Constraint("DistanceY", -1, 1, 0, 3, 87.254528),
])
pocket6 = body.newObject("PartDesign::Pocket", "Pocket005")
pocket6.Profile = sketch7
pocket6.Type = "ThroughAll"
pocket6.Midplane = True

# Sketch on YZ plane
sketch8 = body.newObject("Sketcher::SketchObject", "Sketch007")
sketch8.AttachmentSupport = (doc.getObject("YZ_Plane"), [""])
sketch8.MapMode = "FlatFace"
sketch8.AttachmentOffset = App.Placement(V(0, 0, 126), App.Rotation())
sketch8.addGeometry([
    Part.LineSegment(V(96.4, 98.2, 0), V(93.3, 98.2, 0)),  # 0
    Part.LineSegment(V(93.3, 98.2, 0), V(93.3, 97.2, 0)),  # 1
    Part.LineSegment(V(93.3, 97.2, 0), V(96.4, 97.2, 0)),  # 2
    Part.LineSegment(V(96.4, 97.2, 0), V(96.4, 98.2, 0)),  # 3
    Part.LineSegment(V(96.4, -27.2, 0), V(93.3, -27.2, 0)),  # 4
    Part.LineSegment(V(93.3, -27.2, 0), V(93.3, -28.2, 0)),  # 5
    Part.LineSegment(V(93.3, -28.2, 0), V(96.4, -28.2, 0)),  # 6
    Part.LineSegment(V(96.4, -28.2, 0), V(96.4, -27.2, 0)),  # 7
], False)
sketch8.addConstraint([
    Sketcher.Constraint("Coincident", 0, 2, 1, 1),
    Sketcher.Constraint("Coincident", 1, 2, 2, 1),
    Sketcher.Constraint("Coincident", 2, 2, 3, 1),
    Sketcher.Constraint("Coincident", 3, 2, 0, 1),
    Sketcher.Constraint("Coincident", 4, 2, 5, 1),
    Sketcher.Constraint("Coincident", 5, 2, 6, 1),
    Sketcher.Constraint("Coincident", 6, 2, 7, 1),
    Sketcher.Constraint("Coincident", 7, 2, 4, 1),
    Sketcher.Constraint("Horizontal", 0),
    Sketcher.Constraint("Vertical", 1),
    Sketcher.Constraint("Horizontal", 2),
    Sketcher.Constraint("Vertical", 3),
    Sketcher.Constraint("Horizontal", 4),
    Sketcher.Constraint("Vertical", 5),
    Sketcher.Constraint("Horizontal", 6),
    Sketcher.Constraint("Vertical", 7),
    Sketcher.Constraint("Vertical", 1, 2, 4, 2),
    Sketcher.Constraint("Vertical", 3, 2, 6, 2),
    Sketcher.Constraint("Equal", 3, 5),
    Sketcher.Constraint("DistanceY", 1, 2, 1, 1, 1.0),
    Sketcher.Constraint("DistanceX", 0, 2, 0, 1, 3.175),
    Sketcher.Constraint("DistanceY", 4, 2, 1, 2, 124.35),
    Sketcher.Constraint("DistanceY", -1, 1, 0, 2, 98.175),
    Sketcher.Constraint("DistanceX", -1, 1, 0, 2, 93.254528),
])
pad2 = body.newObject("PartDesign::Pad", "Pad001")
pad2.Profile = sketch8
pad2.Length = 126
pad2.Reversed = True

doc.recompute()
